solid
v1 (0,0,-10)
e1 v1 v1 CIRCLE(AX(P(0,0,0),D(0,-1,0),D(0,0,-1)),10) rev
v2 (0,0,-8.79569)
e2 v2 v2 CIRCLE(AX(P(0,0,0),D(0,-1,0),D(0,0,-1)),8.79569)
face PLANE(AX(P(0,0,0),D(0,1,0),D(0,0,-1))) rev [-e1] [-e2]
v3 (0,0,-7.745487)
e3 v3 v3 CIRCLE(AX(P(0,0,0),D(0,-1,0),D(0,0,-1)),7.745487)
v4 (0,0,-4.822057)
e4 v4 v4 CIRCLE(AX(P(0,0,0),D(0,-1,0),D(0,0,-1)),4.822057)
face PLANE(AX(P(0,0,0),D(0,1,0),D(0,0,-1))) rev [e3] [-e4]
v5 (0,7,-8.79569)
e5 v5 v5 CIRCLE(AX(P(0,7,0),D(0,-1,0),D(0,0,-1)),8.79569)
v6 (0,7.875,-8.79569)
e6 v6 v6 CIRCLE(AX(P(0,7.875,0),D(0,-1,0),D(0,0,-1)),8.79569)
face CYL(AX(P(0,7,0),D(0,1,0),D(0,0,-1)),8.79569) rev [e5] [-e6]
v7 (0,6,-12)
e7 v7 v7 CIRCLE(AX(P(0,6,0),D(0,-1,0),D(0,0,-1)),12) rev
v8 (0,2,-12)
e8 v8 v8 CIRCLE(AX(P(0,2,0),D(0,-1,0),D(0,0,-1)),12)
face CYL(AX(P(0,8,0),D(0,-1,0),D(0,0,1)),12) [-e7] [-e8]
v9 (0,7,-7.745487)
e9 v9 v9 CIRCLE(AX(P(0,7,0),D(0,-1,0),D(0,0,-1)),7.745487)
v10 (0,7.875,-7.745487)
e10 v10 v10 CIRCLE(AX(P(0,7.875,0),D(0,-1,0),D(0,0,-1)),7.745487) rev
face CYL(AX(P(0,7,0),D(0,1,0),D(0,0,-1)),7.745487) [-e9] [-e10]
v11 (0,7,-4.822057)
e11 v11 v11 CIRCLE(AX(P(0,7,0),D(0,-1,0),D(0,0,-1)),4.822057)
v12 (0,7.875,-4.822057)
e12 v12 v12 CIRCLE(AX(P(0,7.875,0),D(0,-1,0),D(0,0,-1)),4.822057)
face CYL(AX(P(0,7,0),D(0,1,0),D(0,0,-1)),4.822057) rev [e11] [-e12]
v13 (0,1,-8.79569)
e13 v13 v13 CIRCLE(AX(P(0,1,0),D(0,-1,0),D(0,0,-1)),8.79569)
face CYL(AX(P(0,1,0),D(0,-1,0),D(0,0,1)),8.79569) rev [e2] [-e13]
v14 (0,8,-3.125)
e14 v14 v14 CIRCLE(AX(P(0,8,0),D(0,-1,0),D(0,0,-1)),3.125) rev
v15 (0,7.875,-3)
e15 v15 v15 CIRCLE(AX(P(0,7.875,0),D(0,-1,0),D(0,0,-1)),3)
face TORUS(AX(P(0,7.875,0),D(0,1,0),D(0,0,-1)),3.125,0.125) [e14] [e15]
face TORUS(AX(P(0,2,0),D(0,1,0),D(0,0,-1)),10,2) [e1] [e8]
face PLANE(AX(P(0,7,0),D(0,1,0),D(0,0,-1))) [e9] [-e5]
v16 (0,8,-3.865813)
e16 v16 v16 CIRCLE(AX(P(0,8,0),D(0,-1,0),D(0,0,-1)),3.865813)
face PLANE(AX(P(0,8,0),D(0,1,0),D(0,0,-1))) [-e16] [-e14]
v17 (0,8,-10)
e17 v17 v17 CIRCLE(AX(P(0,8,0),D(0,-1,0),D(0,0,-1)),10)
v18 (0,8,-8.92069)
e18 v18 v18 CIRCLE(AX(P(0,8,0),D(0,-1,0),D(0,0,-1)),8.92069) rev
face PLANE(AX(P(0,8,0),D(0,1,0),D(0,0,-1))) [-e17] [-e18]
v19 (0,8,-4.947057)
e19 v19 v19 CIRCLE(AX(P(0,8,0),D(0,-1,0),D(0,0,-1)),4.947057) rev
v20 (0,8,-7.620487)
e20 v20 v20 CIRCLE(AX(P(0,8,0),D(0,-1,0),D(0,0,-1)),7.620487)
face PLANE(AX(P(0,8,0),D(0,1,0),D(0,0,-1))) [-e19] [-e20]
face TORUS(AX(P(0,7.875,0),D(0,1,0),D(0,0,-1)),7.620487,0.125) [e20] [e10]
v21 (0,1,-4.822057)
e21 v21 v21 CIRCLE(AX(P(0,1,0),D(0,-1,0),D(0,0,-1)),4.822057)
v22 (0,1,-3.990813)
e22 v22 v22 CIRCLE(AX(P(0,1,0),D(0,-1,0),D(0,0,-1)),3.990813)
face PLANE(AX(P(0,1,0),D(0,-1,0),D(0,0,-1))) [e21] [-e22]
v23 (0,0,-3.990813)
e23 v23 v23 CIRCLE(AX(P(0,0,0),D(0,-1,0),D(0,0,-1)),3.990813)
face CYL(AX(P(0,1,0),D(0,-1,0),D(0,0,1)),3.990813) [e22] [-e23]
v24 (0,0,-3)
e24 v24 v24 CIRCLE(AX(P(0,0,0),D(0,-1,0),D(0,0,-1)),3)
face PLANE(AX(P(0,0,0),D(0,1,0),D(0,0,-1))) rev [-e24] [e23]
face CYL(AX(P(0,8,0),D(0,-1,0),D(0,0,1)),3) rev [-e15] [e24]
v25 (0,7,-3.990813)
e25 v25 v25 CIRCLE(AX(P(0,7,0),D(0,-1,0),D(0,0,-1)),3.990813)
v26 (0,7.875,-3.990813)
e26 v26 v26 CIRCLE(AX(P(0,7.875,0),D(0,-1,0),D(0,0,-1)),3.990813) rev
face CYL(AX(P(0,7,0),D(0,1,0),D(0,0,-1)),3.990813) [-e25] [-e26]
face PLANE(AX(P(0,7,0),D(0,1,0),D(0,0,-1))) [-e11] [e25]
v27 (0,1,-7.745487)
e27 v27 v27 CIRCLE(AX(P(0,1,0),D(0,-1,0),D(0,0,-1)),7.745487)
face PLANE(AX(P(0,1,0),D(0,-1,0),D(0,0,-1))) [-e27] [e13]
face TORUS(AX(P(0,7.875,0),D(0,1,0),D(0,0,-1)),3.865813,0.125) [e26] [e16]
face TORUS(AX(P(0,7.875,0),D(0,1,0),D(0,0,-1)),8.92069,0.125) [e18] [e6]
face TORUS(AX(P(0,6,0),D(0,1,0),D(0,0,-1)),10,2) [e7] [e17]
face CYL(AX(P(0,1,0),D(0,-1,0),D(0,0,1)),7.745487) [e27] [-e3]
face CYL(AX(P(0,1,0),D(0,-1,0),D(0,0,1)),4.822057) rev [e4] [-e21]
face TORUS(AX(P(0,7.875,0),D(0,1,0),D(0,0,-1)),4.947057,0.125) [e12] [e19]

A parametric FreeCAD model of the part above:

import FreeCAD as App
import Part
import Sketcher
Q = App.Units.Quantity


def edges_at(feature, points):
    """Names of the edges that pass closest to the given points."""
    edges = feature.Shape.Edges
    near = lambda p: min(range(len(edges)), key=lambda i: edges[i].distToShape(Part.Vertex(*p))[0])
    return sorted({f"Edge{near(p) + 1}" for p in points})

doc = App.newDocument("Part")
body = doc.addObject("PartDesign::Body", "Body")

# Sketch on XZ plane
sketch1 = body.newObject("Sketcher::SketchObject", "Sketch")
sketch1.AttachmentSupport = (doc.getObject("XZ_Plane"), [""])
sketch1.MapMode = "FlatFace"
sketch1.addGeometry([
    Part.Circle(App.Vector(0, 0, 0), App.Vector(0, 0, 1), 12),
    Part.Circle(App.Vector(0, 0, 0), App.Vector(0, 0, 1), 3),
], False)
sketch1.addConstraint([
    Sketcher.Constraint("Coincident", 0, 3, -1, 1),
    Sketcher.Constraint("Coincident", 1, 3, -1, 1),
    Sketcher.Constraint("Diameter", 0, Q("24 mm")),
    Sketcher.Constraint("Diameter", 1, Q("6 mm")),
])
pad1 = body.newObject("PartDesign::Pad", "Pad")
pad1.Profile = sketch1
pad1.Length = 8
pad1.Reversed = True
doc.recompute()

fillet = body.newObject("PartDesign::Fillet", "Fillet")
fillet.Base = (pad1, edges_at(pad1, [(0, 0, -12), (0, 8, -12)]))
fillet.Radius = 2

# Sketch on XZ plane
sketch2 = body.newObject("Sketcher::SketchObject", "Sketch001")
sketch2.AttachmentSupport = (doc.getObject("XZ_Plane"), [""])
sketch2.MapMode = "FlatFace"
sketch2.AttachmentOffset = App.Placement(App.Vector(0, 0, -8), App.Rotation())
sketch2.addGeometry([
    Part.Circle(App.Vector(0, 0, 0), App.Vector(0, 0, 1), 8.8),
    Part.Circle(App.Vector(0, 0, 0), App.Vector(0, 0, 1), 7.7),
    Part.Circle(App.Vector(0, 0, 0), App.Vector(0, 0, 1), 4.8),
    Part.Circle(App.Vector(0, 0, 0), App.Vector(0, 0, 1), 4),
], False)
sketch2.addConstraint([
    Sketcher.Constraint("Coincident", 0, 3, -1, 1),
    Sketcher.Constraint("Coincident", 1, 3, -1, 1),
    Sketcher.Constraint("Coincident", 2, 3, -1, 1),
    Sketcher.Constraint("Coincident", 3, 3, -1, 1),
    Sketcher.Constraint("Diameter", 0, Q("17.59138 mm")),
    Sketcher.Constraint("Diameter", 1, Q("15.490973 mm")),
    Sketcher.Constraint("Diameter", 2, Q("9.644114 mm")),
    Sketcher.Constraint("Diameter", 3, Q("7.981626 mm")),
])
pocket1 = body.newObject("PartDesign::Pocket", "Pocket")
pocket1.Profile = sketch2
pocket1.Length = 1
pocket1.Reversed = True
doc.recompute()

datumplane = body.newObject("PartDesign::Plane", "DatumPlane")
datumplane.AttachmentSupport = (doc.getObject("XZ_Plane"), [""])
datumplane.MapMode = "FlatFace"
datumplane.AttachmentOffset = App.Placement(App.Vector(0, 0, -4), App.Rotation())
mirrored = body.newObject("PartDesign::Mirrored", "Mirrored")
mirrored.Originals = [pocket1]
mirrored.MirrorPlane = (datumplane, [""])
body.Tip = mirrored
doc.recompute()

fillet2 = body.newObject("PartDesign::Fillet", "Fillet001")
fillet2.Base = (mirrored, edges_at(mirrored, [
    (0, 8, -3.991),
    (0, 8, -4.822),
    (0, 8, -7.745),
    (0, 8, -8.796),
    (0, 8, -3),
]))
fillet2.Radius = 0.125

doc.recompute()
